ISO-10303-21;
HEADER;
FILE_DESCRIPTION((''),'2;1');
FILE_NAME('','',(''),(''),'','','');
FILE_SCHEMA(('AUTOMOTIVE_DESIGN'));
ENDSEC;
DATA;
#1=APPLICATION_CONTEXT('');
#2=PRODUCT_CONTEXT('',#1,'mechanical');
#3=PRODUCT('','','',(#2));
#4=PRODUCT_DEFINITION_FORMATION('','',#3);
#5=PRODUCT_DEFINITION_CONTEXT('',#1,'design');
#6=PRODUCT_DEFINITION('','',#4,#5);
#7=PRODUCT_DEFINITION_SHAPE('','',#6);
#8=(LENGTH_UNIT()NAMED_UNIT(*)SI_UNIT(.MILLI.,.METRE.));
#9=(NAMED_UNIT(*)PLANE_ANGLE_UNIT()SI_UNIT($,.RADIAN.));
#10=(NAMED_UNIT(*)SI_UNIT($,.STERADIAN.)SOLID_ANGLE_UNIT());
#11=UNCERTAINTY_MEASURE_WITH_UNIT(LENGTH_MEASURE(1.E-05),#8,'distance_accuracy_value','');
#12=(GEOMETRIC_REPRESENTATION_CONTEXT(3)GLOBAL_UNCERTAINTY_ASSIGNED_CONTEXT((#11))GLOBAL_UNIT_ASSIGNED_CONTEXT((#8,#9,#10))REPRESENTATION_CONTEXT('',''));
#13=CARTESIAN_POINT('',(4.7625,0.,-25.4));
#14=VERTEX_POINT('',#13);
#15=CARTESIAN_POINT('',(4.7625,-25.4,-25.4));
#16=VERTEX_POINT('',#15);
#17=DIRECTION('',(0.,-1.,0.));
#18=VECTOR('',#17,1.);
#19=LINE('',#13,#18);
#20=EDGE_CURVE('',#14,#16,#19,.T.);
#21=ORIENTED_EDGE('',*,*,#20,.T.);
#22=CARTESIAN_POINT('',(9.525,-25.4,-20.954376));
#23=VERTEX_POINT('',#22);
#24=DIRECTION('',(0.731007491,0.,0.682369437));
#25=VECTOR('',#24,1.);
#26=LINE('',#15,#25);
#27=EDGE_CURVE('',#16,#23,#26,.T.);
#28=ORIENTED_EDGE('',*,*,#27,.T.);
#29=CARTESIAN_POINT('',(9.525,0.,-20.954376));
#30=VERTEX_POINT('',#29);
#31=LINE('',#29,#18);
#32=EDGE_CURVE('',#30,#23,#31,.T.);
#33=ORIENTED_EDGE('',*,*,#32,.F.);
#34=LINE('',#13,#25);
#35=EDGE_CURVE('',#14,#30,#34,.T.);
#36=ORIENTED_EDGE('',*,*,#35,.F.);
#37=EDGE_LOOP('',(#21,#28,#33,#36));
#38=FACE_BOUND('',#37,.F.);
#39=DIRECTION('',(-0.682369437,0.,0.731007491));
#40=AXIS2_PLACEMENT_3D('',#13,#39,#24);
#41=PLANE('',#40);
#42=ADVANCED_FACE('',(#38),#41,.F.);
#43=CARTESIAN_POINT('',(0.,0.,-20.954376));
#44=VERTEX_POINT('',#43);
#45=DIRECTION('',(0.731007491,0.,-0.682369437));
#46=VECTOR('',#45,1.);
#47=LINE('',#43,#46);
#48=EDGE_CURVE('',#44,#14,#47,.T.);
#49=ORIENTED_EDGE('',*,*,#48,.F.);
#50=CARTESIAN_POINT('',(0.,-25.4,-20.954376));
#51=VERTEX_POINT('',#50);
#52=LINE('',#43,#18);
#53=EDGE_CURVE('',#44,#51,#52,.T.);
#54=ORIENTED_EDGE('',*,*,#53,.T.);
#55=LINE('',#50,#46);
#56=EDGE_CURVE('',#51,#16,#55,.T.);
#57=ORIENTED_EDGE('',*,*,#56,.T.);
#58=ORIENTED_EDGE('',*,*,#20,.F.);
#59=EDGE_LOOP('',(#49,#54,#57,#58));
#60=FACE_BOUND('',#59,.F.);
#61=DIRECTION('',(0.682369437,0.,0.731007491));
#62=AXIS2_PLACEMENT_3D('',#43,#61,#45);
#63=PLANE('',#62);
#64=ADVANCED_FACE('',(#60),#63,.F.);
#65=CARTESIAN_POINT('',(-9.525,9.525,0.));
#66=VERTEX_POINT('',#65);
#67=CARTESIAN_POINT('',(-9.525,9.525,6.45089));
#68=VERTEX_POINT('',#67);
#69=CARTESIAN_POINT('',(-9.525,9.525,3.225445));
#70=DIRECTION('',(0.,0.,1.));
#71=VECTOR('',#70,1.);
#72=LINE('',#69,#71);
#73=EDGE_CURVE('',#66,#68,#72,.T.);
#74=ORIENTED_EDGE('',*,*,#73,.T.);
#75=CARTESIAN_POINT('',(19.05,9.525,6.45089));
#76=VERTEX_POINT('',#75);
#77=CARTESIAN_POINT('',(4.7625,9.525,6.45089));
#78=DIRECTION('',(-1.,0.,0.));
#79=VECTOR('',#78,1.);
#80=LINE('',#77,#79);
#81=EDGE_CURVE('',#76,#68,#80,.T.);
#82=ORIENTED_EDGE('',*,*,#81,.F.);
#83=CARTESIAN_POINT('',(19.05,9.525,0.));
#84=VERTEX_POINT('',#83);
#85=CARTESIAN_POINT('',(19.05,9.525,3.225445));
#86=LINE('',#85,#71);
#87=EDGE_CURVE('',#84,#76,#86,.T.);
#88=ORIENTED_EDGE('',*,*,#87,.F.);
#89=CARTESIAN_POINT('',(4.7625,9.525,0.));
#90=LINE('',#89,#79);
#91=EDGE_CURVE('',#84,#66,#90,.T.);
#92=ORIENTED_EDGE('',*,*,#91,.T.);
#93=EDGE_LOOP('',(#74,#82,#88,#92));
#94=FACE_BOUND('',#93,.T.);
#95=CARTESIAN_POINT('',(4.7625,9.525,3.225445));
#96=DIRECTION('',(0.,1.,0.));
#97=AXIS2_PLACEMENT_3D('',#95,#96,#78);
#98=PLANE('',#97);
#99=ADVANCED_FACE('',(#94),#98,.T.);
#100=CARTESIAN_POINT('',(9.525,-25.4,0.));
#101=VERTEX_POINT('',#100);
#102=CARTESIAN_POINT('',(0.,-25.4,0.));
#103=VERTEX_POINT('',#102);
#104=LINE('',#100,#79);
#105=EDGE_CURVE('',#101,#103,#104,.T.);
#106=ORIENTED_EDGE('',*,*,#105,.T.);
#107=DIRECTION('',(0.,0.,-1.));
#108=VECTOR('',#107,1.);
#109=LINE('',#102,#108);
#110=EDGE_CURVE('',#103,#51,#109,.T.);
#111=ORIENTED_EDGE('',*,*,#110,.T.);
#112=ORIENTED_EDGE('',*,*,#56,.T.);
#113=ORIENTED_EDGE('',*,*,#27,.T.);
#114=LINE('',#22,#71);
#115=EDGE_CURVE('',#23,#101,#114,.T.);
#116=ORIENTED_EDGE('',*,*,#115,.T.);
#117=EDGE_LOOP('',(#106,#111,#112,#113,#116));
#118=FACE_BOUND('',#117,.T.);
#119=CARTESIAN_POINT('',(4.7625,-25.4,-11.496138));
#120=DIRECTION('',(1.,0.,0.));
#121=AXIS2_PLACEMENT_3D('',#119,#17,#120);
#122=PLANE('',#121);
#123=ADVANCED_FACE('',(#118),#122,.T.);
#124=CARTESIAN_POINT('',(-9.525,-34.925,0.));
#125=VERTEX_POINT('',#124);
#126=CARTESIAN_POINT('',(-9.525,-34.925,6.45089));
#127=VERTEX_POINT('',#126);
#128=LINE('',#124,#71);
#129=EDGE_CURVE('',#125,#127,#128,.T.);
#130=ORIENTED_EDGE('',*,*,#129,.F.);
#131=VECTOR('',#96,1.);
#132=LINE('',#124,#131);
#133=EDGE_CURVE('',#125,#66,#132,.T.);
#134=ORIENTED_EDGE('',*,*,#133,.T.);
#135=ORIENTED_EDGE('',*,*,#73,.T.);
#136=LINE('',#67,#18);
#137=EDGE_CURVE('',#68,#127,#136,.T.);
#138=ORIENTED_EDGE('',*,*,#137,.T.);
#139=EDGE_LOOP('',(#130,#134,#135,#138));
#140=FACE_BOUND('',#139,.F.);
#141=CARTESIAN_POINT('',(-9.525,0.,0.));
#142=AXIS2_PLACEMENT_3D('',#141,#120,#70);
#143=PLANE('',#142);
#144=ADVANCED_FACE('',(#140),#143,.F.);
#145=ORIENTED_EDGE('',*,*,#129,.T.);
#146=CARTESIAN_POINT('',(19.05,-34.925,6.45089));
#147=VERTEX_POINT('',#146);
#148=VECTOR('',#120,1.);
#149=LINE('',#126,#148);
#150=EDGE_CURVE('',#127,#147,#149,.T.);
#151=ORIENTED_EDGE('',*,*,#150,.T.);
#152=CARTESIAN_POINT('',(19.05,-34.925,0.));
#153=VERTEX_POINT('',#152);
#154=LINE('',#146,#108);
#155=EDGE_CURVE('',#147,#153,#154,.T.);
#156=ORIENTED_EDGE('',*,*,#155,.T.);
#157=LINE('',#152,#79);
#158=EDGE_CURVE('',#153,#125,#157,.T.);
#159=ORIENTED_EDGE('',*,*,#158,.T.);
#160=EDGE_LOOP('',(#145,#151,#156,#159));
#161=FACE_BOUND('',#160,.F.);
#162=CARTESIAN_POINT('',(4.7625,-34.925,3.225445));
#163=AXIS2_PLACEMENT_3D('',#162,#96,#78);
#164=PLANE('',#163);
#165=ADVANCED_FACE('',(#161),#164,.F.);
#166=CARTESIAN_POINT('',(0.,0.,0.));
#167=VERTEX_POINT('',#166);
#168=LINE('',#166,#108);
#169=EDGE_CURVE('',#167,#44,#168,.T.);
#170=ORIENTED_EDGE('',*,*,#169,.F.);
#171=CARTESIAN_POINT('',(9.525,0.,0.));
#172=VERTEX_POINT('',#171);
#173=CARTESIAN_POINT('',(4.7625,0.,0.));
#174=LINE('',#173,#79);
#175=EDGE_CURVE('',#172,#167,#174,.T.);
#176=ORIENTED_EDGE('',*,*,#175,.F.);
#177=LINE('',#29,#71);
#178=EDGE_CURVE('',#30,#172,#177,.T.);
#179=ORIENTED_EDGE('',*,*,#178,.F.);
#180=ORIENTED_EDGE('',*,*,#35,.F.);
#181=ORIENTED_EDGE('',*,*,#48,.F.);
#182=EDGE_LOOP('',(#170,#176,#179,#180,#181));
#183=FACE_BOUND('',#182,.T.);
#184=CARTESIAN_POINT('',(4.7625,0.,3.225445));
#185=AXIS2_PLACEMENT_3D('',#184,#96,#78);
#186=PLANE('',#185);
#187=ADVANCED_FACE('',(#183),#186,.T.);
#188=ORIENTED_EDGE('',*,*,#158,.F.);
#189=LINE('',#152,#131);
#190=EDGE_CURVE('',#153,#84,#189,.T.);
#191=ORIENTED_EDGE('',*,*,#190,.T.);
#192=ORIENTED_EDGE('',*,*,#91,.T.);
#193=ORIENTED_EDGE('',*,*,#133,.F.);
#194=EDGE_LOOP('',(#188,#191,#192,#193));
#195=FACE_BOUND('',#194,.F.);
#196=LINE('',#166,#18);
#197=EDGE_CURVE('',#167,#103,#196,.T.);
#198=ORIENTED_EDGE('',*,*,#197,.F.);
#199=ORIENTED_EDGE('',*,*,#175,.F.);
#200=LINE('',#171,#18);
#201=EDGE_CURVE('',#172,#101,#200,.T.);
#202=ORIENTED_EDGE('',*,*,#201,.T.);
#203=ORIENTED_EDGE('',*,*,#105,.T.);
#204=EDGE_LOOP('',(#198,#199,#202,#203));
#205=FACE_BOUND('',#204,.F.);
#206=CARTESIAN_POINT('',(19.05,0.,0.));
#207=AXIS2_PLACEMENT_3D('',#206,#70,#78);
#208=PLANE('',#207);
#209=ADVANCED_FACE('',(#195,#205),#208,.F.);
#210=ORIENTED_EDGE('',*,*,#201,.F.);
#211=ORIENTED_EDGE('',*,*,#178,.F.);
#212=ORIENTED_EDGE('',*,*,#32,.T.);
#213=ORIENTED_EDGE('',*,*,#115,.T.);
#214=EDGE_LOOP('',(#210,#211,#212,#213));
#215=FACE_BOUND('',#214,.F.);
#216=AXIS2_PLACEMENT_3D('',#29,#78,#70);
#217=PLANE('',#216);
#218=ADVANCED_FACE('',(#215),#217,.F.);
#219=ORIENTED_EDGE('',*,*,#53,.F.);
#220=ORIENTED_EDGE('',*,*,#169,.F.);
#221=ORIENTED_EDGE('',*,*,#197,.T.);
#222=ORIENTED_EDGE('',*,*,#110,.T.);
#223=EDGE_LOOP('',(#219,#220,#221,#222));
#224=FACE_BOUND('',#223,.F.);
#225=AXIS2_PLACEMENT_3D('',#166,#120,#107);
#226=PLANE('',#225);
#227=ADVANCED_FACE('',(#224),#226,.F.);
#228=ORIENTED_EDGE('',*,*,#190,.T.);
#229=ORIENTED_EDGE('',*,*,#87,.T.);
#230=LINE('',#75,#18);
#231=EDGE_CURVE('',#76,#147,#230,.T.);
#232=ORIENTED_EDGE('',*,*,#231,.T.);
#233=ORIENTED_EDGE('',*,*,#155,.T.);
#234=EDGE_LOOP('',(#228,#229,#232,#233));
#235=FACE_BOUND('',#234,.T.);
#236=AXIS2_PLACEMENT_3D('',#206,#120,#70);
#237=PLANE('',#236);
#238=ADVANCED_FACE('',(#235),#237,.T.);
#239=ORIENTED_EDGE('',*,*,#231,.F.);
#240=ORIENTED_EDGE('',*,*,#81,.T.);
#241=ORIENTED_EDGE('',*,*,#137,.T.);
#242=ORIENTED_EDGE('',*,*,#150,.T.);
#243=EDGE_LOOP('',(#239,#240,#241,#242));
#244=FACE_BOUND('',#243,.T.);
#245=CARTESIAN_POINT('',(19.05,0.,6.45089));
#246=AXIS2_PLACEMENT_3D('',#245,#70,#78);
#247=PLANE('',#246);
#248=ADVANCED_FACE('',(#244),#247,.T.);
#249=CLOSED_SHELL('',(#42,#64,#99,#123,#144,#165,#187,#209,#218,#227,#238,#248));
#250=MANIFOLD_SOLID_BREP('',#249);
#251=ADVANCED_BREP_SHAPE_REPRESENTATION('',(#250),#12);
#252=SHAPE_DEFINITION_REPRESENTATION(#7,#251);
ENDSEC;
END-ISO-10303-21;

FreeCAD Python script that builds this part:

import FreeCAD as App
import Part
import Sketcher
Q = App.Units.Quantity


def add_polygon(sketch, points):
    """Adds a closed chain of lines whose ends are joined by coincident constraints."""
    first, n = sketch.GeometryCount, len(points)
    for a, b in zip(points, points[1:] + points[:1]):
        sketch.addGeometry(Part.LineSegment(App.Vector(*a, 0), App.Vector(*b, 0)), False)
    for i in range(n):
        sketch.addConstraint(Sketcher.Constraint("Coincident", first + i, 2, first + (i + 1) % n, 1))

doc = App.newDocument("Part")
params = doc.addObject("Spreadsheet::Sheet", "Params")
for row, (alias, value) in enumerate([
    ("sketch1_width", "0.375 in"),
    ("pad1_length", "1 in"),
    ("sketch2_width", "1.125 in"),
    ("pad2_length", "1.375 in"),
    ("sketch3_width", "1.125 in"),
    ("pad3_length", "0.375 in"),
], start=1):
    params.set(f"A{row}", alias)
    params.set(f"B{row}", "=" + value)
    params.setAlias(f"B{row}", alias)

body = doc.addObject("PartDesign::Body", "Body")

sketch1 = body.newObject("Sketcher::SketchObject", "Sketch")
sketch1.AttachmentSupport = (doc.getObject("XZ_Plane"), [""])
sketch1.MapMode = "FlatFace"
add_polygon(sketch1, [(10, 0), (0, 0), (0, -21), (5, -25), (10, -21)])
sketch1.addConstraint(Sketcher.Constraint("Horizontal", 0))
sketch1.addConstraint(Sketcher.Constraint("Vertical", 1))
sketch1.addConstraint(Sketcher.Constraint("Vertical", 4))
sketch1.addConstraint(Sketcher.Constraint("Coincident", 0, 2, -1, 1))
sketch1.addConstraint(Sketcher.Constraint("Horizontal", 1, 2, 3, 2))
sketch1.addConstraint(Sketcher.Constraint("Equal", 2, 3))
sketch1.addConstraint(Sketcher.Constraint("DistanceY", 2, 2, -1, 1, Q("1 in")))
sketch1.addConstraint(Sketcher.Constraint("DistanceX", 0, 2, 0, 1, Q("0.375 in")))
sketch1.addConstraint(Sketcher.Constraint("Distance", 2, Q("6.514981 mm")))
sketch1.setExpression("Constraints[12]", "Params.sketch1_width")
pad1 = body.newObject("PartDesign::Pad", "Pad")
pad1.Profile = sketch1
pad1.setExpression("Length", "Params.pad1_length")

sketch2 = body.newObject("Sketcher::SketchObject", "Sketch001")
sketch2.AttachmentSupport = (doc.getObject("XZ_Plane"), [""])
sketch2.MapMode = "FlatFace"
add_polygon(sketch2, [(19, 6), (19, 0), (-10, 0), (-10, 6)])
sketch2.addConstraint(Sketcher.Constraint("Vertical", 0))
sketch2.addConstraint(Sketcher.Constraint("Horizontal", 1))
sketch2.addConstraint(Sketcher.Constraint("Vertical", 2))
sketch2.addConstraint(Sketcher.Constraint("Horizontal", 3))
sketch2.addConstraint(Sketcher.Constraint("PointOnObject", 0, 2, -1))
sketch2.addConstraint(Sketcher.Constraint("DistanceX", 1, 2, 1, 1, Q("1.125 in")))
sketch2.addConstraint(Sketcher.Constraint("DistanceX", -1, 1, 0, 2, Q("0.75 in")))
sketch2.addConstraint(Sketcher.Constraint("DistanceY", 0, 2, 0, 1, Q("6.45089 mm")))
sketch2.setExpression("Constraints[9]", "Params.sketch2_width")
pad2 = body.newObject("PartDesign::Pad", "Pad001")
pad2.Profile = sketch2
pad2.setExpression("Length", "Params.pad2_length")

sketch3 = body.newObject("Sketcher::SketchObject", "Sketch002")
sketch3.AttachmentSupport = (doc.getObject("XZ_Plane"), [""])
sketch3.MapMode = "FlatFace"
add_polygon(sketch3, [(19, 6), (19, 0), (-10, 0), (-10, 6)])
sketch3.addConstraint(Sketcher.Constraint("Vertical", 0))
sketch3.addConstraint(Sketcher.Constraint("Horizontal", 1))
sketch3.addConstraint(Sketcher.Constraint("Vertical", 2))
sketch3.addConstraint(Sketcher.Constraint("Horizontal", 3))
sketch3.addConstraint(Sketcher.Constraint("PointOnObject", 0, 2, -1))
sketch3.addConstraint(Sketcher.Constraint("DistanceX", 1, 2, 1, 1, Q("1.125 in")))
sketch3.addConstraint(Sketcher.Constraint("DistanceX", -1, 1, 0, 2, Q("0.75 in")))
sketch3.addConstraint(Sketcher.Constraint("DistanceY", 0, 2, 0, 1, Q("6.45089 mm")))
sketch3.setExpression("Constraints[9]", "Params.sketch3_width")
pad3 = body.newObject("PartDesign::Pad", "Pad002")
pad3.Profile = sketch3
pad3.setExpression("Length", "Params.pad3_length")
pad3.Reversed = True

doc.recompute()
